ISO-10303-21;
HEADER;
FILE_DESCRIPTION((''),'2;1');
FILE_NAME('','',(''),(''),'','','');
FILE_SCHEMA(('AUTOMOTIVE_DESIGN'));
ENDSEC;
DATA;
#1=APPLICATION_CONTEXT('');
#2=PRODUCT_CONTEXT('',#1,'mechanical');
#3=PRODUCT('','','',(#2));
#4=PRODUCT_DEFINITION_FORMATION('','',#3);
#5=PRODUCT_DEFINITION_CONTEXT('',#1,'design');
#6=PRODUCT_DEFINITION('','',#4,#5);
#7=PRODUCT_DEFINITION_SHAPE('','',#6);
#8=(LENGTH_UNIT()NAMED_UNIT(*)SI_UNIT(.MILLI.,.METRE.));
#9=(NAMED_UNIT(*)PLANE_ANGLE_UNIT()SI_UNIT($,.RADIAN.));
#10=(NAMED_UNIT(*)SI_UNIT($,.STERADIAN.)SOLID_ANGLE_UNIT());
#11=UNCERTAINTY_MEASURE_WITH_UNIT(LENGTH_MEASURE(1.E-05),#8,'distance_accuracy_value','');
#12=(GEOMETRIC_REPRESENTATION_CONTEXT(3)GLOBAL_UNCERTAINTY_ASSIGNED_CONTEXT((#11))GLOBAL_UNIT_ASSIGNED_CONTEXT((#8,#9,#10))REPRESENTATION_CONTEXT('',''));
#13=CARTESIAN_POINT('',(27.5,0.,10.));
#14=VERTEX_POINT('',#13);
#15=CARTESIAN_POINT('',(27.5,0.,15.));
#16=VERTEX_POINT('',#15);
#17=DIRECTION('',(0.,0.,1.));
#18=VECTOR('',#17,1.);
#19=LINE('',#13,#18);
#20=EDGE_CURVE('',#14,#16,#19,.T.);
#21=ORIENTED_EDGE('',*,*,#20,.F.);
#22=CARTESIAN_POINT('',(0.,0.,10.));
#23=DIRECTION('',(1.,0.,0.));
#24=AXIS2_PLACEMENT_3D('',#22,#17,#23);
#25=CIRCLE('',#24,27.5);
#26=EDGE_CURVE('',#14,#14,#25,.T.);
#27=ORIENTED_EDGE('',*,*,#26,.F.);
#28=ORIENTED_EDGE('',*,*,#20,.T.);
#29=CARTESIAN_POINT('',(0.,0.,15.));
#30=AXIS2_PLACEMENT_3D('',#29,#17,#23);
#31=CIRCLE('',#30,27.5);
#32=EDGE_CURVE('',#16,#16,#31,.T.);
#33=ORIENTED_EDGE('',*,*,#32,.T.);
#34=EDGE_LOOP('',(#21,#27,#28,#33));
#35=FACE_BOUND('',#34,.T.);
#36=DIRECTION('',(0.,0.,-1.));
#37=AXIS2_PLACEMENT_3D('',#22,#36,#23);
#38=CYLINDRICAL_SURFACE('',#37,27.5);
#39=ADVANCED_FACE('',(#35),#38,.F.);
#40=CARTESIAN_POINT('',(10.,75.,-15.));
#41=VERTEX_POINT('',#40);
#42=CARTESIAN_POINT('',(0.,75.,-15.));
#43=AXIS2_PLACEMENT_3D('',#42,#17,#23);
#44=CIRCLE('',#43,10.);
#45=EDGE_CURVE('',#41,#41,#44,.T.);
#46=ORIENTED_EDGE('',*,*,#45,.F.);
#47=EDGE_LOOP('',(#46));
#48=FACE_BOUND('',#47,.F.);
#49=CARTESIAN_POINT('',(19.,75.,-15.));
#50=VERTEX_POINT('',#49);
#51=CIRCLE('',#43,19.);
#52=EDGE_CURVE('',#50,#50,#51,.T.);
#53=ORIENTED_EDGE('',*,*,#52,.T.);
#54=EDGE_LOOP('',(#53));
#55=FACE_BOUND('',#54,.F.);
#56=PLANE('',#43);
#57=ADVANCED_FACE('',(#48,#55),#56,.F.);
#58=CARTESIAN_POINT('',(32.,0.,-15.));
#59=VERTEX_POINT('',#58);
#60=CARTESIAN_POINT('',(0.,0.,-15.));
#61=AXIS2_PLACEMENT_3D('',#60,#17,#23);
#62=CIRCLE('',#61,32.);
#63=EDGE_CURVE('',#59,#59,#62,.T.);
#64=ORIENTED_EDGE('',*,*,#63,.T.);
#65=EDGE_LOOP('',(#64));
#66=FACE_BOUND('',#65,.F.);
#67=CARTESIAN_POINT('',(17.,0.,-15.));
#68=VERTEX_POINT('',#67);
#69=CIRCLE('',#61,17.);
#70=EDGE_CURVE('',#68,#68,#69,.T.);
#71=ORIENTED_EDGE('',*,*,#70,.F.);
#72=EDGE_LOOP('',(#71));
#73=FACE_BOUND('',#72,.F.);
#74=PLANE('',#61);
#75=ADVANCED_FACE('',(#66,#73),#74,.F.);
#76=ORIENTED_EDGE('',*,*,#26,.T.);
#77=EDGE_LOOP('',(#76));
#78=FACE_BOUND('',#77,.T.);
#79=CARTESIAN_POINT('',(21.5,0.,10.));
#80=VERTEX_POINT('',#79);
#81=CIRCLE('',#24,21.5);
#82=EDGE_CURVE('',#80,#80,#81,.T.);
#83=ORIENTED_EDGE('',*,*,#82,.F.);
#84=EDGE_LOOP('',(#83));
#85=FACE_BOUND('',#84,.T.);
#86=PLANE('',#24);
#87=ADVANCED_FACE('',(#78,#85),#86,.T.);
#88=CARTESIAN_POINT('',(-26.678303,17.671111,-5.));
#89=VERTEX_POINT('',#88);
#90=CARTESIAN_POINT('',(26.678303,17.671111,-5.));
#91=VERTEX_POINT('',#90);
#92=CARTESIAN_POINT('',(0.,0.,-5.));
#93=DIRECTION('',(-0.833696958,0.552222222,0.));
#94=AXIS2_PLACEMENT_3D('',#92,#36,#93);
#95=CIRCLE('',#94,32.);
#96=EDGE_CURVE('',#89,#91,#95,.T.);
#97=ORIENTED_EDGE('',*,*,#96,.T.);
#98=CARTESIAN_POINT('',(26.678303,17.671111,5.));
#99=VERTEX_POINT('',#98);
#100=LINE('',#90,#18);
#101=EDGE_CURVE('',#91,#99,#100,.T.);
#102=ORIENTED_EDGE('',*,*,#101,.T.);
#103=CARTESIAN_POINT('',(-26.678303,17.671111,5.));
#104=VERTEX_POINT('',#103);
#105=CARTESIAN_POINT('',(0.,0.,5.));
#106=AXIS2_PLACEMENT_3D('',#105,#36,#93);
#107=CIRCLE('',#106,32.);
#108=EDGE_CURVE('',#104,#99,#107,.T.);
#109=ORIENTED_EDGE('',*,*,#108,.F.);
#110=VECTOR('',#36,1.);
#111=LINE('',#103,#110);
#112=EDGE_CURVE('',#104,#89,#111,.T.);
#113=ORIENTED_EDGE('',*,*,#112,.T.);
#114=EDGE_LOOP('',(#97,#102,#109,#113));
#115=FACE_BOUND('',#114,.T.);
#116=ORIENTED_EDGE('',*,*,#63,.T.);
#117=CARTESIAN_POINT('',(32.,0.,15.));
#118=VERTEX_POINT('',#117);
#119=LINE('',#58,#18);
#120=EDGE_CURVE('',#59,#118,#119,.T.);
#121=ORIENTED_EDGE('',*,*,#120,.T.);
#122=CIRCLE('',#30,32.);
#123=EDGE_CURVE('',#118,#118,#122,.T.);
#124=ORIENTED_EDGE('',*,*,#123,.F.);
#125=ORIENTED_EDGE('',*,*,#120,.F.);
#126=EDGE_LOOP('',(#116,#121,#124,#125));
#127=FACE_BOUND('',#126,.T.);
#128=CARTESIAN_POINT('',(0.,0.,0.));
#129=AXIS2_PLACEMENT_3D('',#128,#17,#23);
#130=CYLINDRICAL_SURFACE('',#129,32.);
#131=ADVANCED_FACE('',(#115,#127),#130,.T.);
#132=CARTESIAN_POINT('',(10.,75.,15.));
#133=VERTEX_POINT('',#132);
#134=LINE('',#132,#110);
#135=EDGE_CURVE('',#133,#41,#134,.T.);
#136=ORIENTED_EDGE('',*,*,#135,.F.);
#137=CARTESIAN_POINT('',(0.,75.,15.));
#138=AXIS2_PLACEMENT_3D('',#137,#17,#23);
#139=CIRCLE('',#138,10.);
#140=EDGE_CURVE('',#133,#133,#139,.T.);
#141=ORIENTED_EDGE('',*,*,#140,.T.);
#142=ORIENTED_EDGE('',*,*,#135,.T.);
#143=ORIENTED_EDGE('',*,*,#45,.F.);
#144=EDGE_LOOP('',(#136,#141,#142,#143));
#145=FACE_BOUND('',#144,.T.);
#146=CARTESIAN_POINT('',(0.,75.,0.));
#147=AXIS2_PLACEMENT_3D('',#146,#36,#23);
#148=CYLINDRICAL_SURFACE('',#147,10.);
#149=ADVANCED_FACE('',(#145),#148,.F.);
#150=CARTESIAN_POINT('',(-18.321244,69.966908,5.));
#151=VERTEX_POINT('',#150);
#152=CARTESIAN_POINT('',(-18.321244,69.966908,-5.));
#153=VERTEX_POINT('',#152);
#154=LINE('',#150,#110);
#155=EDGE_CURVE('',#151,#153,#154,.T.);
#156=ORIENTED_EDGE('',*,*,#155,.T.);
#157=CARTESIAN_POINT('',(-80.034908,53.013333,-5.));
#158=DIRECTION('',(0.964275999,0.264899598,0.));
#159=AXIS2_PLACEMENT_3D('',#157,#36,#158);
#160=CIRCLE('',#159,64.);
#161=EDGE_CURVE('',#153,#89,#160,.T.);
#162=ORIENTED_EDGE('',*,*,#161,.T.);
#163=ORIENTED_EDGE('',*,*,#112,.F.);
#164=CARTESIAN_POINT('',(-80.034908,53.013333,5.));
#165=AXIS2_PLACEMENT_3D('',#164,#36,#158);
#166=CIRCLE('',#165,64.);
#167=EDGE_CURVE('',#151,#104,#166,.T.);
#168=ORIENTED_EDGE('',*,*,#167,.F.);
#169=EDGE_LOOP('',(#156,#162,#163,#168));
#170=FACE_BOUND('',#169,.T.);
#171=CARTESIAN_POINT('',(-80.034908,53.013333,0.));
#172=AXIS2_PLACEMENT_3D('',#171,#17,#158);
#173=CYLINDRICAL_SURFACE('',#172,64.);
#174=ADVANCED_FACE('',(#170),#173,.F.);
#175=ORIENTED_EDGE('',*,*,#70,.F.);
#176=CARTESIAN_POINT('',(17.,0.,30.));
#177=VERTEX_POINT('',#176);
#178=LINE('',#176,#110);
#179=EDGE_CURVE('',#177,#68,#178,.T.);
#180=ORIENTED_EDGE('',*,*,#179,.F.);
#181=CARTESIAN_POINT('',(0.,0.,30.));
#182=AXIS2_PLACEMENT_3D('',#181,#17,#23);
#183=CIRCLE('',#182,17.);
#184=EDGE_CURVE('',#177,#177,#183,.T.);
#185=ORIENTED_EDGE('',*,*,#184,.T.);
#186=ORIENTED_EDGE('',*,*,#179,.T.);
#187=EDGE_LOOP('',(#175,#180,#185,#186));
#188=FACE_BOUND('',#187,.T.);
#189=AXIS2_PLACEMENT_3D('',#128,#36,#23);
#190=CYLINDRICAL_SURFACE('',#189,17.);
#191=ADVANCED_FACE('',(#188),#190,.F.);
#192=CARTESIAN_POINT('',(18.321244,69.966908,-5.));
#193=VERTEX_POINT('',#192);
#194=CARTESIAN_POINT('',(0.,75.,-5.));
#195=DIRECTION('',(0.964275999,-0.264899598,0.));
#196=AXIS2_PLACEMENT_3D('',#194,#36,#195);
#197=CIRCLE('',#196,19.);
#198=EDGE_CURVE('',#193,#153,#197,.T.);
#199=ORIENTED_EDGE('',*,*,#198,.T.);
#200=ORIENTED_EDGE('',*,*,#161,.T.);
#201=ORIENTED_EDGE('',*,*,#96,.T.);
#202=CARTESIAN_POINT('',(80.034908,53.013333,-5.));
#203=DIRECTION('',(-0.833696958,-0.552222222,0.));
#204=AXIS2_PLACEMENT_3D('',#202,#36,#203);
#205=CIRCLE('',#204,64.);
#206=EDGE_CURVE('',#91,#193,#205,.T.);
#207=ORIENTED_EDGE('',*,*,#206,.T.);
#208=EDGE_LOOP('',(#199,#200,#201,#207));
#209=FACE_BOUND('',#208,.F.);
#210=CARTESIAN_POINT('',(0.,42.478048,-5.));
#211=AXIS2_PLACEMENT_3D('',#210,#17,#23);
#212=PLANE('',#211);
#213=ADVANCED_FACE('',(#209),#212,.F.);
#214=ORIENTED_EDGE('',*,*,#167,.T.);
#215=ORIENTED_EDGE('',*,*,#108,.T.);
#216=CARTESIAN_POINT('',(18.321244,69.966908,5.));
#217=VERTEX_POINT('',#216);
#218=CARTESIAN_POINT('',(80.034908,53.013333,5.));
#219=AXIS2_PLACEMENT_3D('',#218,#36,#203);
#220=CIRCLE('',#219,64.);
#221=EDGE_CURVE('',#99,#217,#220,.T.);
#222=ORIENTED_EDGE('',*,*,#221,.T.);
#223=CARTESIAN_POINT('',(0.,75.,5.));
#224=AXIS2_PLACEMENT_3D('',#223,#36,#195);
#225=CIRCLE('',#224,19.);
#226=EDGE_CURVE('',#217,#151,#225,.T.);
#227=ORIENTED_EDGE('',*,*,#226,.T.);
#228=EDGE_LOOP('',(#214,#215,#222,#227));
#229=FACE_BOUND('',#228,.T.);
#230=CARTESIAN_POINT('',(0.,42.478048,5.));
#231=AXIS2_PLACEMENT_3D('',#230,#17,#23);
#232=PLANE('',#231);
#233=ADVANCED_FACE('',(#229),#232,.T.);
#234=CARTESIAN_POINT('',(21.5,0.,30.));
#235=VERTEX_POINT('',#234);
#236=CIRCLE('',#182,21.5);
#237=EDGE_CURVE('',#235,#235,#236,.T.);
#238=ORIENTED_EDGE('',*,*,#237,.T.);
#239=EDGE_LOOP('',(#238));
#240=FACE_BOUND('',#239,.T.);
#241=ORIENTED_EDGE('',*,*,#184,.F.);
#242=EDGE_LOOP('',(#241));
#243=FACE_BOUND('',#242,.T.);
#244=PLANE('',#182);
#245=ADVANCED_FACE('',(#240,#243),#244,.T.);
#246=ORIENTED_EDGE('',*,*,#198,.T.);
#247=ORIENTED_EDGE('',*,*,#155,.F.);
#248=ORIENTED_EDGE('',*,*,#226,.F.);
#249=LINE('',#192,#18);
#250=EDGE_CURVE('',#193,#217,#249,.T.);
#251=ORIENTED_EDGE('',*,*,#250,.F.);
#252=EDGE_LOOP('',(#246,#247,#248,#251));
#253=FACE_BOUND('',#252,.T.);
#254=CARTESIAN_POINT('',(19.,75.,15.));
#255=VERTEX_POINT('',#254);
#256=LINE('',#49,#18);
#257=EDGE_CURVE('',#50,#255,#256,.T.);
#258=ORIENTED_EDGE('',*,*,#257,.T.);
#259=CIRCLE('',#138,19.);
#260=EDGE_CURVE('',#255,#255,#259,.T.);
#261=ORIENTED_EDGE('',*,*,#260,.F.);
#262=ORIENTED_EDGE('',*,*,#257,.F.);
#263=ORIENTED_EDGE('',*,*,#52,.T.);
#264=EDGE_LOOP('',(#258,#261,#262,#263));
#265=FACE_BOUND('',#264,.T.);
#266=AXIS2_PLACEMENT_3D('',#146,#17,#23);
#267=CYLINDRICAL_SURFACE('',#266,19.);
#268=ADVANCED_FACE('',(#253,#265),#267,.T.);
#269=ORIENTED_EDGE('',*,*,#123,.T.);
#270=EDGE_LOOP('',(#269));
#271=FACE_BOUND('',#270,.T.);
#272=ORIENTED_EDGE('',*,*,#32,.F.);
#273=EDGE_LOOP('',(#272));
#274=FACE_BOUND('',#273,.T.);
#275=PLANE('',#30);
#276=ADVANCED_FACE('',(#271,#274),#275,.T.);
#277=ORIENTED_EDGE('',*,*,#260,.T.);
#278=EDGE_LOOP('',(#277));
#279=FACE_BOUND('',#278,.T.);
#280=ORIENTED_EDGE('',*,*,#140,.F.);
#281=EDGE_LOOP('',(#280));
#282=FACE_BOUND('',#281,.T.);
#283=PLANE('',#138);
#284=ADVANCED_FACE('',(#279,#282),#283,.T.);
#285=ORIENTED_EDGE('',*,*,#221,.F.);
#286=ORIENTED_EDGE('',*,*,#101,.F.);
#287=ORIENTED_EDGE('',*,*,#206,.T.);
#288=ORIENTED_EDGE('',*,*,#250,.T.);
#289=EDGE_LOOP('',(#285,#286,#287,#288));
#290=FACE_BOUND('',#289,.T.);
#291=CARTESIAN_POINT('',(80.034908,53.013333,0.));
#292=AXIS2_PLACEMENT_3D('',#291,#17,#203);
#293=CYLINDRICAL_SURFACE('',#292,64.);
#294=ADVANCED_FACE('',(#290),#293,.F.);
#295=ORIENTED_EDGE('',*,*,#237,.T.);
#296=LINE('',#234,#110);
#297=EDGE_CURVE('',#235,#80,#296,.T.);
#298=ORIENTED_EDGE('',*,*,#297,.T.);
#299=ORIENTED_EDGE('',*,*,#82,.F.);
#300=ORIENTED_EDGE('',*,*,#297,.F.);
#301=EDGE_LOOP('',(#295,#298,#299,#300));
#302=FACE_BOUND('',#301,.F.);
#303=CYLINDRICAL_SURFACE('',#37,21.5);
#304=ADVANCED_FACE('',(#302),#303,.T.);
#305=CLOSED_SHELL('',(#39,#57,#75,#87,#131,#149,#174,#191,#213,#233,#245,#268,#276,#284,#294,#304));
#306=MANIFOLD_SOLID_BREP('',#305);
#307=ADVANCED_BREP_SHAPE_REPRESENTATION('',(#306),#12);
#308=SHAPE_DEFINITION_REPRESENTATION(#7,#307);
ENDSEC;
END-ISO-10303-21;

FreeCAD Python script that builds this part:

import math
import FreeCAD as App
import Part
import Sketcher
from FreeCAD import Vector
Q = App.Units.Quantity

doc = App.newDocument("Part")
body = doc.addObject("PartDesign::Body", "Body")

# Sketch on XY plane
sketch1 = doc.addObject("Sketcher::SketchObject", "Sketch")
body.addObject(sketch1)
sketch1.AttachmentSupport = (doc.XY_Plane, [""])
sketch1.MapMode = "FlatFace"
sketch1.addGeometry([
    Part.ArcOfCircle(Part.Circle(Vector(0, 0, 0), Vector(0, 0, 1), 32), math.radians(33.519601), math.radians(146.480399)),
    Part.ArcOfCircle(Part.Circle(Vector(80.034908, 53.013333, 0), Vector(0, 0, 1), 64), math.radians(164.639013), math.radians(213.519601)),
    Part.ArcOfCircle(Part.Circle(Vector(0, 75, 0), Vector(0, 0, 1), 19), math.radians(-164.639013), math.radians(-15.360987)),
    Part.ArcOfCircle(Part.Circle(Vector(-80.034908, 53.013333, 0), Vector(0, 0, 1), 64), math.radians(-33.519601), math.radians(15.360987)),
], False)
sketch1.addConstraint([
    Sketcher.Constraint("Tangent", 0, 1, 1, 2),
    Sketcher.Constraint("Tangent", 1, 1, 2, 2),
    Sketcher.Constraint("Tangent", 2, 1, 3, 2),
    Sketcher.Constraint("Tangent", 3, 1, 0, 2),
    Sketcher.Constraint("Coincident", 0, 3, -1, 1),
    Sketcher.Constraint("Equal", 1, 3),
    Sketcher.Constraint("PointOnObject", 2, 3, -2),
    Sketcher.Constraint("Radius", 0, Q("32 mm")),
    Sketcher.Constraint("Radius", 1, Q("64 mm")),
    Sketcher.Constraint("Radius", 2, Q("19 mm")),
    Sketcher.Constraint("DistanceY", -1, 1, 2, 3, Q("75 mm")),
])
pad1 = doc.addObject("PartDesign::Pad", "Pad")
body.addObject(pad1)
pad1.Profile = sketch1
pad1.Length = 10
pad1.Midplane = True

# Sketch on XY plane
sketch2 = doc.addObject("Sketcher::SketchObject", "Sketch001")
body.addObject(sketch2)
sketch2.AttachmentSupport = (doc.XY_Plane, [""])
sketch2.MapMode = "FlatFace"
sketch2.addGeometry([
    Part.Circle(Vector(0, 75, 0), Vector(0, 0, 1), 19),
    Part.Circle(Vector(0, 75, 0), Vector(0, 0, 1), 10),
], False)
sketch2.addConstraint([
    Sketcher.Constraint("Coincident", 1, 3, 0, 3),
    Sketcher.Constraint("PointOnObject", 0, 3, -2),
    Sketcher.Constraint("Diameter", 0, Q("38 mm")),
    Sketcher.Constraint("Diameter", 1, Q("20 mm")),
    Sketcher.Constraint("DistanceY", -1, 1, 0, 3, Q("75 mm")),
])
pad2 = doc.addObject("PartDesign::Pad", "Pad001")
body.addObject(pad2)
pad2.Profile = sketch2
pad2.Length = 30
pad2.Midplane = True
body2 = doc.addObject("PartDesign::Body", "Body001")

# Sketch on XY plane
sketch3 = doc.addObject("Sketcher::SketchObject", "Sketch002")
body2.addObject(sketch3)
sketch3.AttachmentSupport = (doc.getObject("XY_Plane001"), [""])
sketch3.MapMode = "FlatFace"
sketch3.addGeometry([
    Part.Circle(Vector(0, 0, 0), Vector(0, 0, 1), 21.5),
    Part.Circle(Vector(0, 0, 0), Vector(0, 0, 1), 17),
], False)
sketch3.addConstraint([
    Sketcher.Constraint("Coincident", 0, 3, -1, 1),
    Sketcher.Constraint("Coincident", 1, 3, -1, 1),
    Sketcher.Constraint("Diameter", 0, Q("43 mm")),
    Sketcher.Constraint("Diameter", 1, Q("34 mm")),
])
pad3 = doc.addObject("PartDesign::Pad", "Pad002")
body2.addObject(pad3)
pad3.Profile = sketch3
pad3.Type = "TwoLengths"
pad3.Length = 30
pad3.Length2 = 15
body.AllowCompound = True
doc.recompute()

boolean = doc.addObject("PartDesign::Boolean", "Boolean")
body.addObject(boolean)
boolean.Type = "Fuse"
boolean.addObjects([body2])

# Sketch on XY plane
sketch4 = doc.addObject("Sketcher::SketchObject", "Sketch003")
body.addObject(sketch4)
sketch4.AttachmentSupport = (doc.XY_Plane, [""])
sketch4.MapMode = "FlatFace"
sketch4.addGeometry([
    Part.Circle(Vector(0, 0, 0), Vector(0, 0, 1), 32),
    Part.Circle(Vector(0, 0, 0), Vector(0, 0, 1), 21.5),
], False)
sketch4.addConstraint([
    Sketcher.Constraint("Coincident", 0, 3, -1, 1),
    Sketcher.Constraint("Coincident", 1, 3, -1, 1),
    Sketcher.Constraint("Diameter", 0, Q("64 mm")),
    Sketcher.Constraint("Diameter", 1, Q("43 mm")),
])
pad4 = doc.addObject("PartDesign::Pad", "Pad003")
body.addObject(pad4)
pad4.Profile = sketch4
pad4.Length = 30
pad4.Midplane = True

# Sketch on XY plane
sketch5 = doc.addObject("Sketcher::SketchObject", "Sketch004")
body.addObject(sketch5)
sketch5.AttachmentSupport = (doc.XY_Plane, [""])
sketch5.MapMode = "FlatFace"
sketch5.AttachmentOffset = App.Placement(Vector(0, 0, 10), App.Rotation())
sketch5.addGeometry([
    Part.Circle(Vector(0, 0, 0), Vector(0, 0, 1), 27.5),
    Part.Circle(Vector(0, 0, 0), Vector(0, 0, 1), 21.5),
], False)
sketch5.addConstraint([
    Sketcher.Constraint("Coincident", 0, 3, -1, 1),
    Sketcher.Constraint("Coincident", 1, 3, -1, 1),
    Sketcher.Constraint("Diameter", 0, Q("55 mm")),
    Sketcher.Constraint("Diameter", 1, Q("43 mm")),
])
pocket1 = doc.addObject("PartDesign::Pocket", "Pocket")
body.addObject(pocket1)
pocket1.Profile = sketch5
pocket1.Length = 5
pocket1.Reversed = True

doc.recompute()
